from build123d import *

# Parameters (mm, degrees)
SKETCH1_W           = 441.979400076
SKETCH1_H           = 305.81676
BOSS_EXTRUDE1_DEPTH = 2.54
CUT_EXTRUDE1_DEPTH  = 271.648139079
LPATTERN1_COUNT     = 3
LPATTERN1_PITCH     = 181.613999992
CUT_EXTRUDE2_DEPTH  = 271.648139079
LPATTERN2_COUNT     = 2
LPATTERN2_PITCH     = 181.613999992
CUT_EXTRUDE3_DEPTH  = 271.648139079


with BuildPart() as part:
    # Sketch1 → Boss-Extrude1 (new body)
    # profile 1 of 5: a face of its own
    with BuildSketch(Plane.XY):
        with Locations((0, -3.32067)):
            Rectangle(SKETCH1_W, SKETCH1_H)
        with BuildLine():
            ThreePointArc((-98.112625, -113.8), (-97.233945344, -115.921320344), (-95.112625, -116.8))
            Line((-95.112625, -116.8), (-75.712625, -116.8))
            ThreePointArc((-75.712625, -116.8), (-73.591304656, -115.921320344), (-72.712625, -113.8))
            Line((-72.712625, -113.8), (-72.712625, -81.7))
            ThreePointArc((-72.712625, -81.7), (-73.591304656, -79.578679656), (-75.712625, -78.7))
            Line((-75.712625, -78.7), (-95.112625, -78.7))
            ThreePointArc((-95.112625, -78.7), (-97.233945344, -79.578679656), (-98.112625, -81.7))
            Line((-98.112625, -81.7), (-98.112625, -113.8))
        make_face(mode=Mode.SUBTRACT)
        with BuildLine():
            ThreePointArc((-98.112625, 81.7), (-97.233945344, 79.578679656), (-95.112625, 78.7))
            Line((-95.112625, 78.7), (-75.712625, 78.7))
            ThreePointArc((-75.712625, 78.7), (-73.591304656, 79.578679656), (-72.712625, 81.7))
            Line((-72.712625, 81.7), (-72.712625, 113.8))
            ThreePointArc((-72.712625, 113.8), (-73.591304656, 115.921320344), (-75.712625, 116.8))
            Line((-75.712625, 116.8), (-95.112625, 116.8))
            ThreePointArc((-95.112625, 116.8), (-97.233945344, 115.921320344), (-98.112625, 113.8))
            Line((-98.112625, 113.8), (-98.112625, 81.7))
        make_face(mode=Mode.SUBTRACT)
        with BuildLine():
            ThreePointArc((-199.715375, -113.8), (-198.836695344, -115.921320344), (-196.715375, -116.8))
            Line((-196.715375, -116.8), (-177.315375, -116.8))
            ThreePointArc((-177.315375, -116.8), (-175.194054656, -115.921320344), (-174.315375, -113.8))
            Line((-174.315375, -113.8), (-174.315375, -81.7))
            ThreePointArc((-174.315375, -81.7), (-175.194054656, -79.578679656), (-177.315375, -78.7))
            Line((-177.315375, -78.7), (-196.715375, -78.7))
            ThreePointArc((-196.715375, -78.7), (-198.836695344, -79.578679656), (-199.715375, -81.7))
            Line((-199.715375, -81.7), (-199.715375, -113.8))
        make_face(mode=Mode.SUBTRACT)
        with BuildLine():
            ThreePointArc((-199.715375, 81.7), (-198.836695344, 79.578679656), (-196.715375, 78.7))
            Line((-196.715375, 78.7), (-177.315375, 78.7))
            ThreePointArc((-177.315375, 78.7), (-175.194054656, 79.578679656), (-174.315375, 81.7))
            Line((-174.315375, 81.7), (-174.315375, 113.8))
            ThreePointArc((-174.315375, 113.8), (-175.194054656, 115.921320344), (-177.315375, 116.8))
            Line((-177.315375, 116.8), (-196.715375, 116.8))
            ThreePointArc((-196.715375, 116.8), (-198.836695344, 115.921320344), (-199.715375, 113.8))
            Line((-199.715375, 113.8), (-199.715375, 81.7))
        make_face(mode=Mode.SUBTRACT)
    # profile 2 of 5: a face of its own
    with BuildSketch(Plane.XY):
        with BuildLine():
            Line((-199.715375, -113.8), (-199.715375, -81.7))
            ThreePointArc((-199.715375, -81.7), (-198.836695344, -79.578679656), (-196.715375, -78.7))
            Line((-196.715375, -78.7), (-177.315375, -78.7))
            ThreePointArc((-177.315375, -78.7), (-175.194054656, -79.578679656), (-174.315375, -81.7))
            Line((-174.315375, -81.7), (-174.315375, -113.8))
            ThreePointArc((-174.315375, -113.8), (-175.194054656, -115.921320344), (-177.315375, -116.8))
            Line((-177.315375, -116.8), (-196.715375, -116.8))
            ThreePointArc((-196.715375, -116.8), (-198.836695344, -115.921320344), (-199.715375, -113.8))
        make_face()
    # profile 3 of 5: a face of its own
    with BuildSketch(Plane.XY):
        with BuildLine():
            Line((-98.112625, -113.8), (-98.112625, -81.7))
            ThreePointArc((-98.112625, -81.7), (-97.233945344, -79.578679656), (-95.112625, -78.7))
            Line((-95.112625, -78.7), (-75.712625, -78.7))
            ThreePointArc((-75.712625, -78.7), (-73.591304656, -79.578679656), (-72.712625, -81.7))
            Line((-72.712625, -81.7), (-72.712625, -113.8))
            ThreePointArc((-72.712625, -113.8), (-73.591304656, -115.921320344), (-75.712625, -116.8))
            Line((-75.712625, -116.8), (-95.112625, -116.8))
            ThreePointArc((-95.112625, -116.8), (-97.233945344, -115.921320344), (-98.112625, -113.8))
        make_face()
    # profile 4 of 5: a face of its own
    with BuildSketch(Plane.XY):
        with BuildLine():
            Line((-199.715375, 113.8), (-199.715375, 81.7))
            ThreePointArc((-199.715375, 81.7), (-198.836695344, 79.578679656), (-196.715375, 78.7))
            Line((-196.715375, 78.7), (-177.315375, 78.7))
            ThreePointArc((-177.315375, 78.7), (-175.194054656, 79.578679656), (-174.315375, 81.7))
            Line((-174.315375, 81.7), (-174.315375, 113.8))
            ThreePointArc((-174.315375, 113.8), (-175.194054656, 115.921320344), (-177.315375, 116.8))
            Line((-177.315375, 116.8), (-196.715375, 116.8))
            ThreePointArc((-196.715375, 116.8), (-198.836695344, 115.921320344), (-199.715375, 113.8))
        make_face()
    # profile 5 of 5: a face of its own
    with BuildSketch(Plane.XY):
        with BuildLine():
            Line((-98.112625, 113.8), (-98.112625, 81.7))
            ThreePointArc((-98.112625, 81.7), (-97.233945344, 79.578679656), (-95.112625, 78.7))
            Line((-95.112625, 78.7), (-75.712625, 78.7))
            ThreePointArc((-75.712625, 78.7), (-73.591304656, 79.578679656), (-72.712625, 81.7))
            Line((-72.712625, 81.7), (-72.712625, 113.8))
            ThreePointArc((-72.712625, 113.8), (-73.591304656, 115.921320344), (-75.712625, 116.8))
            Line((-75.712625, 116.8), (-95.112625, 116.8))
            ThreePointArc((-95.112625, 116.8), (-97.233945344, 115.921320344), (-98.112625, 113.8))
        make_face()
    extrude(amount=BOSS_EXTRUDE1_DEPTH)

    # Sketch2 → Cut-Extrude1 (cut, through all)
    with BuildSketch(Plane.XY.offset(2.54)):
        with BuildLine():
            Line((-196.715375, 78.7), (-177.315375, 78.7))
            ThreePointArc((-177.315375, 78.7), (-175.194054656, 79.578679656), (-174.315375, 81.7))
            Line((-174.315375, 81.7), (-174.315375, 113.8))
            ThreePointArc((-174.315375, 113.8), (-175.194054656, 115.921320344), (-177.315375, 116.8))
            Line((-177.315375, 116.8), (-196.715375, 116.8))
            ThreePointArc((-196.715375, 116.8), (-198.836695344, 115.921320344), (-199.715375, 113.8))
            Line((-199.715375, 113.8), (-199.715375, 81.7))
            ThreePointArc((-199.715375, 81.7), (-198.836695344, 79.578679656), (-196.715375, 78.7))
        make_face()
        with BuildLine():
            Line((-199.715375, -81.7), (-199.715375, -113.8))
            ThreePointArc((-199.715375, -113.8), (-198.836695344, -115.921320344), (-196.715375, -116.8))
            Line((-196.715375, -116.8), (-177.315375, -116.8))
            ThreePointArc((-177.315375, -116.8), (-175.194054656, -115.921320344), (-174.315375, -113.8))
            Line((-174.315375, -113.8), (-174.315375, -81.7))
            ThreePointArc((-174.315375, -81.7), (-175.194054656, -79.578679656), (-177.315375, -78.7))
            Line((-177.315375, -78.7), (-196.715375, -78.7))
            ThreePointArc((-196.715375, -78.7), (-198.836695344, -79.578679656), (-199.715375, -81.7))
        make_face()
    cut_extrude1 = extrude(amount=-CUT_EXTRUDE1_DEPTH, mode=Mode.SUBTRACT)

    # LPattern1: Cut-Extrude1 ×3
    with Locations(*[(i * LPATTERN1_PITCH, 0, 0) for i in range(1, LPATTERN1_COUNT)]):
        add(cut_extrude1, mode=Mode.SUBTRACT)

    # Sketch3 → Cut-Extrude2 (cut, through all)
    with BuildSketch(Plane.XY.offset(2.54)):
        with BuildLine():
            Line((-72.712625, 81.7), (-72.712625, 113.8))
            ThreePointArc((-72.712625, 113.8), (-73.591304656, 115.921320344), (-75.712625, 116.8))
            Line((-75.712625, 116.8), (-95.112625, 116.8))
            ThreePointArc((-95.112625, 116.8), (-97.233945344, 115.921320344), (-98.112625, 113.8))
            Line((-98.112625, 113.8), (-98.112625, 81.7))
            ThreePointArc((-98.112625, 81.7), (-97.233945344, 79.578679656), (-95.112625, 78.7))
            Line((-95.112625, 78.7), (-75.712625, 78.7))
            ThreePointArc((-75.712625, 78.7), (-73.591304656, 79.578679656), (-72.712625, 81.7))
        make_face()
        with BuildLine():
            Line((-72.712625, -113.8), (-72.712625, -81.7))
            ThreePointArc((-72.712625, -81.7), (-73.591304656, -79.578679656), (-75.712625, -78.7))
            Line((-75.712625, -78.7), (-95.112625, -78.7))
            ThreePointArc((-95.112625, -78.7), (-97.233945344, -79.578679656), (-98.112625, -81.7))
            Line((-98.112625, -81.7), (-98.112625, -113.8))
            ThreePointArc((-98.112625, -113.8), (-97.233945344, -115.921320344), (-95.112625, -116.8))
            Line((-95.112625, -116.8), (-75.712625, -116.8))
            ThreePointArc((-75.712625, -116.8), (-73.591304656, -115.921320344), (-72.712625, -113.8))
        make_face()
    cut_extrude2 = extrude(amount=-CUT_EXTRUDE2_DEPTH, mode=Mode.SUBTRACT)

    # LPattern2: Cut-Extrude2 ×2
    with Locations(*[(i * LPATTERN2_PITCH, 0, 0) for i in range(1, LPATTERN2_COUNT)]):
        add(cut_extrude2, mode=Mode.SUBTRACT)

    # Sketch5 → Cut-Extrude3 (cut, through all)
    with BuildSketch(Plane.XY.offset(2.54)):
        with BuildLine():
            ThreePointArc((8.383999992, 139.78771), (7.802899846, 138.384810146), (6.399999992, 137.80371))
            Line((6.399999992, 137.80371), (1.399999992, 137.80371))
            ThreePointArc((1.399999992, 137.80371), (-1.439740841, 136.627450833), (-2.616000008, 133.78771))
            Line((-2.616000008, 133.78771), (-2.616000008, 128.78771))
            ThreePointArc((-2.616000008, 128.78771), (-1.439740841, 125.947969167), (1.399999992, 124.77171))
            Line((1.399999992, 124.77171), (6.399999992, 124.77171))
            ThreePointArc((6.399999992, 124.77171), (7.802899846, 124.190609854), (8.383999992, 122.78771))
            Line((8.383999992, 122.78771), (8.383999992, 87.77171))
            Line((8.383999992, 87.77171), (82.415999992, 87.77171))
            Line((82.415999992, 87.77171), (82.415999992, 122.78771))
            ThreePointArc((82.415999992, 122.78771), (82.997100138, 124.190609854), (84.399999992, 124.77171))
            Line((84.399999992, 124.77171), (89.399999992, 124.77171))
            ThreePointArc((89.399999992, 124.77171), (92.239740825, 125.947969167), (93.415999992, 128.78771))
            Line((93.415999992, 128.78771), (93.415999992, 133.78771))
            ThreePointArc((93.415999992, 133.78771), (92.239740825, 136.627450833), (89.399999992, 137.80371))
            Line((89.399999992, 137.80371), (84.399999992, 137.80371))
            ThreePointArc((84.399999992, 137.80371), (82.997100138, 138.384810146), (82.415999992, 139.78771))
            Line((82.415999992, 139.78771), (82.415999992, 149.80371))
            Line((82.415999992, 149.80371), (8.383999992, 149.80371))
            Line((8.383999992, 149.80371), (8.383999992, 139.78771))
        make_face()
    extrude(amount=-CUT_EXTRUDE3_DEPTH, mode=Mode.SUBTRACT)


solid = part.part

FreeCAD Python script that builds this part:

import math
import FreeCAD as App
import Part
import Sketcher

V = App.Vector
Q = App.Units.Quantity

doc = App.newDocument("Part")
body = doc.addObject("PartDesign::Body", "Body")

# Sketch on XY plane
sketch1 = body.newObject("Sketcher::SketchObject", "Sketch")
sketch1.AttachmentSupport = (doc.getObject("XY_Plane"), [""])
sketch1.MapMode = "FlatFace"
sketch1.addGeometry([
    Part.LineSegment(V(-221, 150, 0), V(-221, -156, 0)),
    Part.LineSegment(V(-221, -156, 0), V(221, -156, 0)),
    Part.LineSegment(V(221, -156, 0), V(221, 150, 0)),
    Part.LineSegment(V(221, 150, 0), V(-221, 150, 0)),
], False)
sketch1.addConstraint([
    Sketcher.Constraint("Coincident", 0, 2, 1, 1),
    Sketcher.Constraint("Coincident", 1, 2, 2, 1),
    Sketcher.Constraint("Coincident", 2, 2, 3, 1),
    Sketcher.Constraint("Coincident", 3, 2, 0, 1),
    Sketcher.Constraint("Vertical", 0),
    Sketcher.Constraint("Horizontal", 1),
    Sketcher.Constraint("Vertical", 2),
    Sketcher.Constraint("Horizontal", 3),
    Sketcher.Constraint("DistanceX", 1, 1, 1, 2, Q("441.9794 mm")),
    Sketcher.Constraint("DistanceY", 0, 2, 0, 1, Q("305.81676 mm")),
    Sketcher.Constraint("DistanceX", 0, 2, -1, 1, Q("220.9897 mm")),
    Sketcher.Constraint("DistanceY", 0, 2, -1, 1, Q("156.22905 mm")),
])
pad1 = body.newObject("PartDesign::Pad", "Pad")
pad1.Profile = sketch1
pad1.Length = 2.54

# Sketch on XY plane
sketch2 = body.newObject("Sketcher::SketchObject", "Sketch001")
sketch2.AttachmentSupport = (doc.getObject("XY_Plane"), [""])
sketch2.MapMode = "FlatFace"
sketch2.AttachmentOffset = App.Placement(V(0, 0, 2.54), App.Rotation())
sketch2.addGeometry([
    Part.LineSegment(V(-196.7, 78.7, 0), V(-177.3, 78.7, 0)),  # 0
    Part.ArcOfCircle(Part.Circle(V(-177.3, 81.7, 0), V(0, 0, 1), 3), math.radians(-90), math.radians(0)),  # 1
    Part.LineSegment(V(-174.3, 81.7, 0), V(-174.3, 113.8, 0)),  # 2
    Part.ArcOfCircle(Part.Circle(V(-177.3, 113.8, 0), V(0, 0, 1), 3), math.radians(0), math.radians(90)),  # 3
    Part.LineSegment(V(-177.3, 116.8, 0), V(-196.7, 116.8, 0)),  # 4
    Part.ArcOfCircle(Part.Circle(V(-196.7, 113.8, 0), V(0, 0, 1), 3), math.radians(90), math.radians(180)),  # 5
    Part.LineSegment(V(-199.7, 113.8, 0), V(-199.7, 81.7, 0)),  # 6
    Part.ArcOfCircle(Part.Circle(V(-196.7, 81.7, 0), V(0, 0, 1), 3), math.radians(180), math.radians(270)),  # 7
    Part.LineSegment(V(-199.7, -81.7, 0), V(-199.7, -113.8, 0)),  # 8
    Part.ArcOfCircle(Part.Circle(V(-196.7, -113.8, 0), V(0, 0, 1), 3), math.radians(180), math.radians(270)),  # 9
    Part.LineSegment(V(-196.7, -116.8, 0), V(-177.3, -116.8, 0)),  # 10
    Part.ArcOfCircle(Part.Circle(V(-177.3, -113.8, 0), V(0, 0, 1), 3), math.radians(-90), math.radians(0)),  # 11
    Part.LineSegment(V(-174.3, -113.8, 0), V(-174.3, -81.7, 0)),  # 12
    Part.ArcOfCircle(Part.Circle(V(-177.3, -81.7, 0), V(0, 0, 1), 3), math.radians(0), math.radians(90)),  # 13
    Part.LineSegment(V(-177.3, -78.7, 0), V(-196.7, -78.7, 0)),  # 14
    Part.ArcOfCircle(Part.Circle(V(-196.7, -81.7, 0), V(0, 0, 1), 3), math.radians(90), math.radians(180)),  # 15
], False)
sketch2.addConstraint([
    Sketcher.Constraint("Tangent", 0, 2, 1, 1),
    Sketcher.Constraint("Tangent", 1, 2, 2, 1),
    Sketcher.Constraint("Tangent", 2, 2, 3, 1),
    Sketcher.Constraint("Tangent", 3, 2, 4, 1),
    Sketcher.Constraint("Tangent", 4, 2, 5, 1),
    Sketcher.Constraint("Tangent", 5, 2, 6, 1),
    Sketcher.Constraint("Tangent", 6, 2, 7, 1),
    Sketcher.Constraint("Tangent", 7, 2, 0, 1),
    Sketcher.Constraint("Tangent", 8, 2, 9, 1),
    Sketcher.Constraint("Tangent", 9, 2, 10, 1),
    Sketcher.Constraint("Tangent", 10, 2, 11, 1),
    Sketcher.Constraint("Tangent", 11, 2, 12, 1),
    Sketcher.Constraint("Tangent", 12, 2, 13, 1),
    Sketcher.Constraint("Tangent", 13, 2, 14, 1),
    Sketcher.Constraint("Tangent", 14, 2, 15, 1),
    Sketcher.Constraint("Tangent", 15, 2, 8, 1),
    Sketcher.Constraint("Horizontal", 0),
    Sketcher.Constraint("Vertical", 2),
    Sketcher.Constraint("Horizontal", 4),
    Sketcher.Constraint("Vertical", 6),
    Sketcher.Constraint("Vertical", 8),
    Sketcher.Constraint("Horizontal", 10),
    Sketcher.Constraint("Vertical", 12),
    Sketcher.Constraint("Horizontal", 14),
    Sketcher.Constraint("Equal", 1, 3),
    Sketcher.Constraint("Equal", 3, 5),
    Sketcher.Constraint("Equal", 5, 7),
    Sketcher.Constraint("Equal", 7, 9),
    Sketcher.Constraint("Equal", 9, 11),
    Sketcher.Constraint("Equal", 11, 13),
    Sketcher.Constraint("Equal", 13, 15),
    Sketcher.Constraint("Symmetric", 5, 3, 9, 3, -1),
    Sketcher.Constraint("Symmetric", 1, 3, 13, 3, -1),
    Sketcher.Constraint("Radius", 1, Q("3 mm")),
    Sketcher.Constraint("DistanceX", 0, 1, 0, 2, Q("19.4 mm")),
    Sketcher.Constraint("DistanceY", 2, 1, 2, 2, Q("32.1 mm")),
    Sketcher.Constraint("DistanceY", -1, 1, 1, 3, Q("81.7 mm")),
    Sketcher.Constraint("DistanceX", 1, 3, -1, 1, Q("177.315375 mm")),
])
pocket1 = body.newObject("PartDesign::Pocket", "Pocket")
pocket1.Profile = sketch2
pocket1.Type = "ThroughAll"
doc.recompute()

linearpattern = body.newObject("PartDesign::LinearPattern", "LinearPattern")
linearpattern.Originals = [pocket1]
linearpattern.Direction = (doc.getObject("X_Axis"), [""])
linearpattern.Mode = "offset"
linearpattern.Offset = 181.614
linearpattern.Occurrences = 3
body.Tip = linearpattern

# Sketch on XY plane
sketch3 = body.newObject("Sketcher::SketchObject", "Sketch002")
sketch3.AttachmentSupport = (doc.getObject("XY_Plane"), [""])
sketch3.MapMode = "FlatFace"
sketch3.AttachmentOffset = App.Placement(V(0, 0, 2.54), App.Rotation())
sketch3.addGeometry([
    Part.LineSegment(V(-72.7, 81.7, 0), V(-72.7, 113.8, 0)),  # 0
    Part.ArcOfCircle(Part.Circle(V(-75.7, 113.8, 0), V(0, 0, 1), 3), math.radians(0), math.radians(90)),  # 1
    Part.LineSegment(V(-75.7, 116.8, 0), V(-95.1, 116.8, 0)),  # 2
    Part.ArcOfCircle(Part.Circle(V(-95.1, 113.8, 0), V(0, 0, 1), 3), math.radians(90), math.radians(180)),  # 3
    Part.LineSegment(V(-98.1, 113.8, 0), V(-98.1, 81.7, 0)),  # 4
    Part.ArcOfCircle(Part.Circle(V(-95.1, 81.7, 0), V(0, 0, 1), 3), math.radians(180), math.radians(270)),  # 5
    Part.LineSegment(V(-95.1, 78.7, 0), V(-75.7, 78.7, 0)),  # 6
    Part.ArcOfCircle(Part.Circle(V(-75.7, 81.7, 0), V(0, 0, 1), 3), math.radians(-90), math.radians(0)),  # 7
    Part.LineSegment(V(-72.7, -113.8, 0), V(-72.7, -81.7, 0)),  # 8
    Part.ArcOfCircle(Part.Circle(V(-75.7, -81.7, 0), V(0, 0, 1), 3), math.radians(0), math.radians(90)),  # 9
    Part.LineSegment(V(-75.7, -78.7, 0), V(-95.1, -78.7, 0)),  # 10
    Part.ArcOfCircle(Part.Circle(V(-95.1, -81.7, 0), V(0, 0, 1), 3), math.radians(90), math.radians(180)),  # 11
    Part.LineSegment(V(-98.1, -81.7, 0), V(-98.1, -113.8, 0)),  # 12
    Part.ArcOfCircle(Part.Circle(V(-95.1, -113.8, 0), V(0, 0, 1), 3), math.radians(180), math.radians(270)),  # 13
    Part.LineSegment(V(-95.1, -116.8, 0), V(-75.7, -116.8, 0)),  # 14
    Part.ArcOfCircle(Part.Circle(V(-75.7, -113.8, 0), V(0, 0, 1), 3), math.radians(-90), math.radians(0)),  # 15
], False)
sketch3.addConstraint([
    Sketcher.Constraint("Tangent", 0, 2, 1, 1),
    Sketcher.Constraint("Tangent", 1, 2, 2, 1),
    Sketcher.Constraint("Tangent", 2, 2, 3, 1),
    Sketcher.Constraint("Tangent", 3, 2, 4, 1),
    Sketcher.Constraint("Tangent", 4, 2, 5, 1),
    Sketcher.Constraint("Tangent", 5, 2, 6, 1),
    Sketcher.Constraint("Tangent", 6, 2, 7, 1),
    Sketcher.Constraint("Tangent", 7, 2, 0, 1),
    Sketcher.Constraint("Tangent", 8, 2, 9, 1),
    Sketcher.Constraint("Tangent", 9, 2, 10, 1),
    Sketcher.Constraint("Tangent", 10, 2, 11, 1),
    Sketcher.Constraint("Tangent", 11, 2, 12, 1),
    Sketcher.Constraint("Tangent", 12, 2, 13, 1),
    Sketcher.Constraint("Tangent", 13, 2, 14, 1),
    Sketcher.Constraint("Tangent", 14, 2, 15, 1),
    Sketcher.Constraint("Tangent", 15, 2, 8, 1),
    Sketcher.Constraint("Vertical", 0),
    Sketcher.Constraint("Horizontal", 2),
    Sketcher.Constraint("Vertical", 4),
    Sketcher.Constraint("Horizontal", 6),
    Sketcher.Constraint("Vertical", 8),
    Sketcher.Constraint("Horizontal", 10),
    Sketcher.Constraint("Vertical", 12),
    Sketcher.Constraint("Horizontal", 14),
    Sketcher.Constraint("Equal", 1, 3),
    Sketcher.Constraint("Equal", 3, 5),
    Sketcher.Constraint("Equal", 5, 7),
    Sketcher.Constraint("Equal", 7, 9),
    Sketcher.Constraint("Equal", 9, 11),
    Sketcher.Constraint("Equal", 11, 13),
    Sketcher.Constraint("Equal", 13, 15),
    Sketcher.Constraint("Symmetric", 7, 3, 9, 3, -1),
    Sketcher.Constraint("Symmetric", 3, 3, 13, 3, -1),
    Sketcher.Constraint("Radius", 1, Q("3 mm")),
    Sketcher.Constraint("DistanceX", 2, 2, 2, 1, Q("19.4 mm")),
    Sketcher.Constraint("DistanceY", 0, 1, 0, 2, Q("32.1 mm")),
    Sketcher.Constraint("DistanceY", -1, 1, 1, 3, Q("113.8 mm")),
    Sketcher.Constraint("DistanceX", 1, 3, -1, 1, Q("75.712625 mm")),
])
pocket2 = body.newObject("PartDesign::Pocket", "Pocket001")
pocket2.Profile = sketch3
pocket2.Type = "ThroughAll"
doc.recompute()

linearpattern2 = body.newObject("PartDesign::LinearPattern", "LinearPattern001")
linearpattern2.Originals = [pocket2]
linearpattern2.Direction = (doc.getObject("X_Axis"), [""])
linearpattern2.Mode = "offset"
linearpattern2.Offset = 181.614
linearpattern2.Occurrences = 2
body.Tip = linearpattern2

# Sketch on XY plane
sketch4 = body.newObject("Sketcher::SketchObject", "Sketch003")
sketch4.AttachmentSupport = (doc.getObject("XY_Plane"), [""])
sketch4.MapMode = "FlatFace"
sketch4.AttachmentOffset = App.Placement(V(0, 0, 2.54), App.Rotation())
sketch4.addGeometry([
    Part.ArcOfCircle(Part.Circle(V(6.4, 139.8, 0), V(0, 0, 1), 2), math.radians(-90), math.radians(0)),  # 0
    Part.LineSegment(V(6.4, 137.8, 0), V(1.4, 137.8, 0)),  # 1
    Part.ArcOfCircle(Part.Circle(V(1.4, 133.8, 0), V(0, 0, 1), 4), math.radians(90), math.radians(180)),  # 2
    Part.LineSegment(V(-2.6, 133.8, 0), V(-2.6, 128.8, 0)),  # 3
    Part.ArcOfCircle(Part.Circle(V(1.4, 128.8, 0), V(0, 0, 1), 4), math.radians(-180), math.radians(-90)),  # 4
    Part.LineSegment(V(1.4, 124.8, 0), V(6.4, 124.8, 0)),  # 5
    Part.ArcOfCircle(Part.Circle(V(6.4, 122.8, 0), V(0, 0, 1), 2), math.radians(0), math.radians(90)),  # 6
    Part.LineSegment(V(8.4, 122.8, 0), V(8.4, 87.8, 0)),  # 7
    Part.LineSegment(V(8.4, 87.8, 0), V(82.4, 87.8, 0)),  # 8
    Part.LineSegment(V(82.4, 87.8, 0), V(82.4, 122.8, 0)),  # 9
    Part.ArcOfCircle(Part.Circle(V(84.4, 122.8, 0), V(0, 0, 1), 2), math.radians(90), math.radians(180)),  # 10
    Part.LineSegment(V(84.4, 124.8, 0), V(89.4, 124.8, 0)),  # 11
    Part.ArcOfCircle(Part.Circle(V(89.4, 128.8, 0), V(0, 0, 1), 4), math.radians(-90), math.radians(0)),  # 12
    Part.LineSegment(V(93.4, 128.8, 0), V(93.4, 133.8, 0)),  # 13
    Part.ArcOfCircle(Part.Circle(V(89.4, 133.8, 0), V(0, 0, 1), 4), math.radians(0), math.radians(90)),  # 14
    Part.LineSegment(V(89.4, 137.8, 0), V(84.4, 137.8, 0)),  # 15
    Part.ArcOfCircle(Part.Circle(V(84.4, 139.8, 0), V(0, 0, 1), 2), math.radians(180), math.radians(270)),  # 16
    Part.LineSegment(V(82.4, 139.8, 0), V(82.4, 149.8, 0)),  # 17
    Part.LineSegment(V(82.4, 149.8, 0), V(8.4, 149.8, 0)),  # 18
    Part.LineSegment(V(8.4, 149.8, 0), V(8.4, 139.8, 0)),  # 19
], False)
sketch4.addConstraint([
    Sketcher.Constraint("Tangent", 0, 1, 1, 1),
    Sketcher.Constraint("Tangent", 1, 2, 2, 1),
    Sketcher.Constraint("Tangent", 2, 2, 3, 1),
    Sketcher.Constraint("Tangent", 3, 2, 4, 1),
    Sketcher.Constraint("Tangent", 4, 2, 5, 1),
    Sketcher.Constraint("Tangent", 5, 2, 6, 2),
    Sketcher.Constraint("Tangent", 6, 1, 7, 1),
    Sketcher.Constraint("Coincident", 7, 2, 8, 1),
    Sketcher.Constraint("Coincident", 8, 2, 9, 1),
    Sketcher.Constraint("Tangent", 9, 2, 10, 2),
    Sketcher.Constraint("Tangent", 10, 1, 11, 1),
    Sketcher.Constraint("Tangent", 11, 2, 12, 1),
    Sketcher.Constraint("Tangent", 12, 2, 13, 1),
    Sketcher.Constraint("Tangent", 13, 2, 14, 1),
    Sketcher.Constraint("Tangent", 14, 2, 15, 1),
    Sketcher.Constraint("Tangent", 15, 2, 16, 2),
    Sketcher.Constraint("Tangent", 16, 1, 17, 1),
    Sketcher.Constraint("Coincident", 17, 2, 18, 1),
    Sketcher.Constraint("Coincident", 18, 2, 19, 1),
    Sketcher.Constraint("Tangent", 19, 2, 0, 2),
    Sketcher.Constraint("Horizontal", 1),
    Sketcher.Constraint("Vertical", 3),
    Sketcher.Constraint("Horizontal", 5),
    Sketcher.Constraint("Vertical", 7),
    Sketcher.Constraint("Horizontal", 8),
    Sketcher.Constraint("Vertical", 9),
    Sketcher.Constraint("Horizontal", 11),
    Sketcher.Constraint("Vertical", 13),
    Sketcher.Constraint("Horizontal", 15),
    Sketcher.Constraint("Vertical", 17),
    Sketcher.Constraint("Horizontal", 18),
    Sketcher.Constraint("Vertical", 19),
    Sketcher.Constraint("Equal", 2, 4),
    Sketcher.Constraint("Equal", 0, 6),
    Sketcher.Constraint("Equal", 6, 10),
    Sketcher.Constraint("Equal", 4, 12),
    Sketcher.Constraint("Equal", 12, 14),
    Sketcher.Constraint("Equal", 10, 16),
    Sketcher.Constraint("Horizontal", 6, 3, 10, 3),
    Sketcher.Constraint("Horizontal", 2, 3, 14, 3),
    Sketcher.Constraint("Vertical", 0, 3, 6, 3),
    Sketcher.Constraint("Vertical", 10, 3, 16, 3),
    Sketcher.Constraint("Equal", 5, 11),
    Sketcher.Constraint("Equal", 15, 3),
    Sketcher.Constraint("DistanceX", 1, 2, 1, 1, Q("5 mm")),
    Sketcher.Constraint("Radius", 0, Q("1.984 mm")),
    Sketcher.Constraint("Radius", 2, Q("4.016 mm")),
    Sketcher.Constraint("DistanceX", 6, 3, 10, 3, Q("78 mm")),
    Sketcher.Constraint("DistanceY", 7, 2, 5, 2, Q("37 mm")),
    Sketcher.Constraint("DistanceY", 15, 2, 17, 2, Q("12 mm")),
    Sketcher.Constraint("DistanceX", -1, 1, 0, 3, Q("6.4 mm")),
    Sketcher.Constraint("DistanceY", -1, 1, 0, 3, Q("139.78771 mm")),
])
pocket3 = body.newObject("PartDesign::Pocket", "Pocket002")
pocket3.Profile = sketch4
pocket3.Type = "ThroughAll"

doc.recompute()
